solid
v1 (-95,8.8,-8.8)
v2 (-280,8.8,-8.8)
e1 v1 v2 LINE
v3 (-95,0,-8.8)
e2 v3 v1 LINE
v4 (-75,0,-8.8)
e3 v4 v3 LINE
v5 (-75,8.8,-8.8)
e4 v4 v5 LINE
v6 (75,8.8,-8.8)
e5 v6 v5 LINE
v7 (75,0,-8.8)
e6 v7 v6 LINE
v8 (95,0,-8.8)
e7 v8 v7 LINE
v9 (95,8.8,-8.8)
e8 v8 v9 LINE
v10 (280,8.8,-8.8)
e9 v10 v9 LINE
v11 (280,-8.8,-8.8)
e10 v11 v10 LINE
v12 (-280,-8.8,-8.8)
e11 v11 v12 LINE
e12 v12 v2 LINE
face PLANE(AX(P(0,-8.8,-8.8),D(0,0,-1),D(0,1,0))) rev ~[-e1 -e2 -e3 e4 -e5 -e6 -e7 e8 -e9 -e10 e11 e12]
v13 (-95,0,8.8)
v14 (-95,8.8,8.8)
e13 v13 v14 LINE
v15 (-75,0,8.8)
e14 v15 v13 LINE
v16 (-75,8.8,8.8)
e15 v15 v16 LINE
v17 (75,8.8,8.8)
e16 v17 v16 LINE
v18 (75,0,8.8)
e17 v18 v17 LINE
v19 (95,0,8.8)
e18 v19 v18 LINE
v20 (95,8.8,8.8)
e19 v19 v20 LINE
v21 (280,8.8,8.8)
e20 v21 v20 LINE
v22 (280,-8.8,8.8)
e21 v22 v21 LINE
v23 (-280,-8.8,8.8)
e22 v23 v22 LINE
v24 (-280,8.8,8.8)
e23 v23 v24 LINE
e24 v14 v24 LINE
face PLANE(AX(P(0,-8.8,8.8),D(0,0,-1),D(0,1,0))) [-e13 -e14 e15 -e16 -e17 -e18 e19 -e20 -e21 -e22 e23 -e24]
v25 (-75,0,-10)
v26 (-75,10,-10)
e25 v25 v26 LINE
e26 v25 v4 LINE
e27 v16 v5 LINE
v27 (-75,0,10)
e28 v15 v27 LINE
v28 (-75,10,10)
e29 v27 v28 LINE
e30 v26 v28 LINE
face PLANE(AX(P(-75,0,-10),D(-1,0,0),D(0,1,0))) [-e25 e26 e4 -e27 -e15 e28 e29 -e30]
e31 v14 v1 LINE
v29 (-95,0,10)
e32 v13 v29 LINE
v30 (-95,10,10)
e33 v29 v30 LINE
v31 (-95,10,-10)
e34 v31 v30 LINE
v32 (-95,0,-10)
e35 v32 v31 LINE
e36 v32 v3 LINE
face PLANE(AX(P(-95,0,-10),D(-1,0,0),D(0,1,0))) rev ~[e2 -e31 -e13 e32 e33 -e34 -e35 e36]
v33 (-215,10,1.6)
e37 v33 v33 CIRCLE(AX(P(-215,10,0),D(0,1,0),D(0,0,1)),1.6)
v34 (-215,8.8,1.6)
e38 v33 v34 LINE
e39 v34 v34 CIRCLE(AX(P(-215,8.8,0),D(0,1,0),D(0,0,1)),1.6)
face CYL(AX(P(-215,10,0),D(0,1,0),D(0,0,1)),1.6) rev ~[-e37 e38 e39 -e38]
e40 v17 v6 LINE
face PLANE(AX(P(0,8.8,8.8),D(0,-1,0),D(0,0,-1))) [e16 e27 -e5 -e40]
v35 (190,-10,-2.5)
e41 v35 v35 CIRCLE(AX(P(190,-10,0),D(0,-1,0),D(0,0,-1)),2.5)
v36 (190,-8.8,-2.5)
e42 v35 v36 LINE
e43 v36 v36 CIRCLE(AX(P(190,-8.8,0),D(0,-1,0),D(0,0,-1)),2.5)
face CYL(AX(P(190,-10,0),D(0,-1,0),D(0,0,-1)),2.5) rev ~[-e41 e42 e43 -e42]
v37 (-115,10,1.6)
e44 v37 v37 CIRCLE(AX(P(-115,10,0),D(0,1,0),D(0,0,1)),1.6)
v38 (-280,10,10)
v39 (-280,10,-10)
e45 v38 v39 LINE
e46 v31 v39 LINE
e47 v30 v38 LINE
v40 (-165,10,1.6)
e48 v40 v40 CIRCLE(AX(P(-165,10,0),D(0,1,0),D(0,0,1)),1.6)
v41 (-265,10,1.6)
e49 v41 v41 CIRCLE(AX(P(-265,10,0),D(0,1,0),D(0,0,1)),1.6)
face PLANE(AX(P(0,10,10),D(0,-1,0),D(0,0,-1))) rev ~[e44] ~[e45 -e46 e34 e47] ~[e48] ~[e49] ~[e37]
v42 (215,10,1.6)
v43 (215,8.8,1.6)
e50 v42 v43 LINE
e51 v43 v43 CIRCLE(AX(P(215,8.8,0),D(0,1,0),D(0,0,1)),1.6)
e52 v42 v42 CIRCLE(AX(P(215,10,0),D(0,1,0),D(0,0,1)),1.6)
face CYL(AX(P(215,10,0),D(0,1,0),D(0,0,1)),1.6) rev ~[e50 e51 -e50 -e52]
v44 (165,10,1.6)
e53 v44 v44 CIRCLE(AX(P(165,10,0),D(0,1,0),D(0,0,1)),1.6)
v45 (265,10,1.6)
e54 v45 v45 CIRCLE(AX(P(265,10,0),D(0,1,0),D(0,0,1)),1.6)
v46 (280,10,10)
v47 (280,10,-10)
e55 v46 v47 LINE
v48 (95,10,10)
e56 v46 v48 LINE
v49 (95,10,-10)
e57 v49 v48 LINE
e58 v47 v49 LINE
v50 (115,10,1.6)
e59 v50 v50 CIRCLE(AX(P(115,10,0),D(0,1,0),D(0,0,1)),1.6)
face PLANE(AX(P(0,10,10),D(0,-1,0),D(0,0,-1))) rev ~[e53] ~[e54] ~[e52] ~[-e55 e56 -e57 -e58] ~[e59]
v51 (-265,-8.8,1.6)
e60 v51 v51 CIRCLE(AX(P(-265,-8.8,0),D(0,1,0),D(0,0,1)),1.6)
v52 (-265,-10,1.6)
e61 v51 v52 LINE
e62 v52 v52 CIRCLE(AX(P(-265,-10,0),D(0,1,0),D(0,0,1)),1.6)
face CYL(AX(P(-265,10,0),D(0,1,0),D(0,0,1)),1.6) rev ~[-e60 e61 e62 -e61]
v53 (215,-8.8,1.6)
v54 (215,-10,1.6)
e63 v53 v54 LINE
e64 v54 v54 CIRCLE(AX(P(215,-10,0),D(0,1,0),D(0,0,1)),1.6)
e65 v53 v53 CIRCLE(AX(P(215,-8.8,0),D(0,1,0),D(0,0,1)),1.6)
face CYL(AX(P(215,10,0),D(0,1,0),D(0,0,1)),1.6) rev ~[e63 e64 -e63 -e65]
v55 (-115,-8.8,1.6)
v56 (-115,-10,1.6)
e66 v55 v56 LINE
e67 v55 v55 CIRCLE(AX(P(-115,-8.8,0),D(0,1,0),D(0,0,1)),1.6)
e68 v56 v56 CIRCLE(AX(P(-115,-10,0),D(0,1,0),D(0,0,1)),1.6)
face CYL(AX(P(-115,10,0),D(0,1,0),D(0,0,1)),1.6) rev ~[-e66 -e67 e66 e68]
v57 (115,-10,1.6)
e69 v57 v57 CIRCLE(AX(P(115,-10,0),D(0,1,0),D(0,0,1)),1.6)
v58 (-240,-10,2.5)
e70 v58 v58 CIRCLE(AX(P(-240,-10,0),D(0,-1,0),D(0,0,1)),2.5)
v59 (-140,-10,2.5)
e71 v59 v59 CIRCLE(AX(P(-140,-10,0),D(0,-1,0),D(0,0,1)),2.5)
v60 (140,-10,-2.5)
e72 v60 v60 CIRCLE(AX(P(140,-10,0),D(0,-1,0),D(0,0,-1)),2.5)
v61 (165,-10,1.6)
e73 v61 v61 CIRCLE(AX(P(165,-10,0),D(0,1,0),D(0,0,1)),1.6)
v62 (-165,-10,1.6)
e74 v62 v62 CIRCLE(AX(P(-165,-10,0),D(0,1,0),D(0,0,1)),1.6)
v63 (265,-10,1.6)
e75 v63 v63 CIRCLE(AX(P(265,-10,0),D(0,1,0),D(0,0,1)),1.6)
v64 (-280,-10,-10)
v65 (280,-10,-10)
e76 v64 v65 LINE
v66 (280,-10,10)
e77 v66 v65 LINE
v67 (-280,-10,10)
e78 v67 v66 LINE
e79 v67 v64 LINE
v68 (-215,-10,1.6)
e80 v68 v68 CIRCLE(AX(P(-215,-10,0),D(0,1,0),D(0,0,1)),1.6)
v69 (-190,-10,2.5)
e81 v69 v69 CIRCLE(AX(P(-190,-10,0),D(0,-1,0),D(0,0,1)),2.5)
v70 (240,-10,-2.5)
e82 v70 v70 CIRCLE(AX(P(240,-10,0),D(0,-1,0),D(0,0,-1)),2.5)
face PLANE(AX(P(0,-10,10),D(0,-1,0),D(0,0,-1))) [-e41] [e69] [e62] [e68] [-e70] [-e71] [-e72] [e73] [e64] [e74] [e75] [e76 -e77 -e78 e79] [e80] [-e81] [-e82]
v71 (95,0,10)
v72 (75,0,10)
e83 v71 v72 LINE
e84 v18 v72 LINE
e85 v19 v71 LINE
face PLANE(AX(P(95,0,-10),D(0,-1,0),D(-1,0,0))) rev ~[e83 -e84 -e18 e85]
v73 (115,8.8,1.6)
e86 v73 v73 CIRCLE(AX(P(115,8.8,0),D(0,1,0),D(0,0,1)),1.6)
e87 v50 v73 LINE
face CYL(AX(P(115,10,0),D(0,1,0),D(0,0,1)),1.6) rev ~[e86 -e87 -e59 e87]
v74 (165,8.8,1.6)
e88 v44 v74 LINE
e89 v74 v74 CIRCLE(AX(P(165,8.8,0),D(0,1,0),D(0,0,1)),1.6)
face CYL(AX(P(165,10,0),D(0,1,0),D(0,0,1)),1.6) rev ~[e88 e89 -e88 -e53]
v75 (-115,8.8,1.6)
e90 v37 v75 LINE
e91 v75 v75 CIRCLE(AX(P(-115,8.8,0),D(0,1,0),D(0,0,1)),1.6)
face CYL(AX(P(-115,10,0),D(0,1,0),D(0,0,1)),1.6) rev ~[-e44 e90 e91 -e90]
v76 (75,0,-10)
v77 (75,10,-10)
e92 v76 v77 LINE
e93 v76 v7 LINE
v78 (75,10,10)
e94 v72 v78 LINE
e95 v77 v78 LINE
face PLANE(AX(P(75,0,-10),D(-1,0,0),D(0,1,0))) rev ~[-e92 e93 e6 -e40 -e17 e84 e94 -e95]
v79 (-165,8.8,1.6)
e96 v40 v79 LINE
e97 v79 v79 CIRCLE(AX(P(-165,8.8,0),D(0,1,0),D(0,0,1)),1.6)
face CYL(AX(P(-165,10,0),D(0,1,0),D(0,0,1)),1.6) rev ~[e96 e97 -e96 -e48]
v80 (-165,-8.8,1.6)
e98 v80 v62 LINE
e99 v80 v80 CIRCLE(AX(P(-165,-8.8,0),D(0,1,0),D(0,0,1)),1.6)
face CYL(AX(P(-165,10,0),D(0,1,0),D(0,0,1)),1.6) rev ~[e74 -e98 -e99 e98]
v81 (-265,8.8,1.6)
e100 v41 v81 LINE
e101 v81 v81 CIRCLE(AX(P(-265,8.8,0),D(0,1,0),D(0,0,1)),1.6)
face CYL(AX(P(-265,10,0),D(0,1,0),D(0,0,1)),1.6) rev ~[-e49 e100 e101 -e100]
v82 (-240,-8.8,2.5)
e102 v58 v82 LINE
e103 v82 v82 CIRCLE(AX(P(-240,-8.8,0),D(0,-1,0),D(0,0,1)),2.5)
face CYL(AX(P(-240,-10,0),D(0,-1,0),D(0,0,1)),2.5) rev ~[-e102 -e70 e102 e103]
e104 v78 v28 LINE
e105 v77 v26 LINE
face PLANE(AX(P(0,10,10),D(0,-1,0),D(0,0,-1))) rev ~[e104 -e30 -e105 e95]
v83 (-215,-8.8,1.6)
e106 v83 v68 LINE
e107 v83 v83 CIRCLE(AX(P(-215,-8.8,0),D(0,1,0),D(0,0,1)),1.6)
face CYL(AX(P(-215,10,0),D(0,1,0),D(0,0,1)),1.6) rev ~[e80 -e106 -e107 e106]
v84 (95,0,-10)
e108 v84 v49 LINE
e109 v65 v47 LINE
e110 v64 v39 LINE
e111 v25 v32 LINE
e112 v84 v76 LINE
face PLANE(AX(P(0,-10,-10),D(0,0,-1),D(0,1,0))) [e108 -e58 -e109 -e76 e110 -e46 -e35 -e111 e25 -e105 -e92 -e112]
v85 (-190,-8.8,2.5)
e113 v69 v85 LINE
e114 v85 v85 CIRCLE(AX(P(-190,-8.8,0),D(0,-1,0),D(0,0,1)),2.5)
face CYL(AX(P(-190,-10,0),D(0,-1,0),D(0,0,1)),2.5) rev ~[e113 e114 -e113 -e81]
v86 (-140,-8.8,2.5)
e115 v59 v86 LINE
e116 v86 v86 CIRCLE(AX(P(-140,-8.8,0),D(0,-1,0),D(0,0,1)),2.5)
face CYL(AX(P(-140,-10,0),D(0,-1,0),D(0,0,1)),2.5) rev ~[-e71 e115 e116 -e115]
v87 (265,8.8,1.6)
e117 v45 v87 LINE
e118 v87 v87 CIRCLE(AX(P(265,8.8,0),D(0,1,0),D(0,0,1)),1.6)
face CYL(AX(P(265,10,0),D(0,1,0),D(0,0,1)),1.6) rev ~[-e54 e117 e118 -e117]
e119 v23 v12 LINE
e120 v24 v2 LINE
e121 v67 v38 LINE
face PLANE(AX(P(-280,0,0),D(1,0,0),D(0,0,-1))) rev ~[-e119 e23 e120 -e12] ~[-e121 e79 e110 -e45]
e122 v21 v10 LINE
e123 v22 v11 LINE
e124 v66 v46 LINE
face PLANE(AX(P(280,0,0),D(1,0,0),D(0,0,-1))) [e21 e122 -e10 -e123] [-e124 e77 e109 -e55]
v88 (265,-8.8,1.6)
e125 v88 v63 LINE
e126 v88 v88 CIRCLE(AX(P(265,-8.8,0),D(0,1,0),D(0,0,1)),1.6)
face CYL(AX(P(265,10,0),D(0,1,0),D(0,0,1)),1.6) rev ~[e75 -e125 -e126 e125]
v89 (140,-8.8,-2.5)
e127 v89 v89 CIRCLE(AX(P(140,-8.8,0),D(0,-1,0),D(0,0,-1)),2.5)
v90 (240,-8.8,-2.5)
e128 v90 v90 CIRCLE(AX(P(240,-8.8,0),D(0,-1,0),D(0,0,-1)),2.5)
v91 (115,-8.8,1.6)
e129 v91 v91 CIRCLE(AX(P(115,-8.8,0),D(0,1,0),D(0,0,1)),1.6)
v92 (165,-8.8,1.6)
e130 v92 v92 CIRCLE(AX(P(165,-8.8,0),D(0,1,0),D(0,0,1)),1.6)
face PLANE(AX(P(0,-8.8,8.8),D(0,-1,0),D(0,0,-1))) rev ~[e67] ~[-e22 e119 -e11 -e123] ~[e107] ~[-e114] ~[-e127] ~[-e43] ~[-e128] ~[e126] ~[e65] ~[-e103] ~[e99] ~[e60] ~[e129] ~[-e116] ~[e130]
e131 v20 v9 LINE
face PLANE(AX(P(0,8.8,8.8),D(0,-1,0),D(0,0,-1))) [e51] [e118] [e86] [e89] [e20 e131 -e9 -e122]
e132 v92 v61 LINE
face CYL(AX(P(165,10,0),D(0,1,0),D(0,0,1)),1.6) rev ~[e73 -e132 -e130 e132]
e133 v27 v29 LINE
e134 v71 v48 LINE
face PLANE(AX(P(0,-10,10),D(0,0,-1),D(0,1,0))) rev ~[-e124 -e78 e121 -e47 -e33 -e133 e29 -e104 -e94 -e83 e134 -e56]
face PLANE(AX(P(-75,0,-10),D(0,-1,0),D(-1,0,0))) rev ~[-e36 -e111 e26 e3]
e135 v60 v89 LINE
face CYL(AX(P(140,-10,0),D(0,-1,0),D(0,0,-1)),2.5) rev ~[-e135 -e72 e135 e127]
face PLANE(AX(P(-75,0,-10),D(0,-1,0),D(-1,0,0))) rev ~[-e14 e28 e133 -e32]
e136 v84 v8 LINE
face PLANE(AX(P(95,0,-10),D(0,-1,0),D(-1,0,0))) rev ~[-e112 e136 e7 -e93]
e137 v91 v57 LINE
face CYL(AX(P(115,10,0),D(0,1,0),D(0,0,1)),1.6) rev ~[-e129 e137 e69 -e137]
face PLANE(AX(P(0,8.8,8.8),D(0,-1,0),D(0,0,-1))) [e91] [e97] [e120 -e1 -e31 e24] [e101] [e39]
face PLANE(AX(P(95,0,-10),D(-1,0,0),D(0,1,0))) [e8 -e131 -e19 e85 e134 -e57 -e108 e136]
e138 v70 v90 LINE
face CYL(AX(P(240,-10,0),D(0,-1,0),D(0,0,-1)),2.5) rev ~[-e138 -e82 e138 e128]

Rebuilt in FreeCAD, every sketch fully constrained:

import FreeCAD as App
import Part
import Sketcher

V = App.Vector
Q = App.Units.Quantity

doc = App.newDocument("Part")
params = doc.addObject("Spreadsheet::Sheet", "Params")
for row, (alias, value) in enumerate([
    ("sketch1_width", "20 mm"),
    ("sketch1_width2", "17.6 mm"),
    ("pad1_length", "560 mm"),
    ("sketch2_width", "20 mm"),
    ("sketch2_height", "10 mm"),
    ("sketch3_diameter", "3.2 mm"),
    ("sketch4_diameter", "5 mm"),
    ("sketch5_diameter", "5 mm"),
    ("sketch6_diameter", "5 mm"),
    ("sketch7_diameter", "5 mm"),
    ("sketch8_diameter", "5 mm"),
    ("sketch9_diameter", "5 mm"),
], start=1):
    params.set(f"A{row}", alias)
    params.set(f"B{row}", "=" + value)
    params.setAlias(f"B{row}", alias)

body = doc.addObject("PartDesign::Body", "Body")

# Sketch on YZ plane
sketch1 = body.newObject("Sketcher::SketchObject", "Sketch")
sketch1.AttachmentSupport = (doc.getObject("YZ_Plane"), [""])
sketch1.MapMode = "FlatFace"
sketch1.addGeometry(Part.LineSegment(V(10, 10, 0), V(-10, 10, 0)), False)
sketch1.addGeometry(Part.LineSegment(V(-10, 10, 0), V(-10, -10, 0)), False)
sketch1.addGeometry(Part.LineSegment(V(-10, -10, 0), V(10, -10, 0)), False)
sketch1.addGeometry(Part.LineSegment(V(10, -10, 0), V(10, 10, 0)), False)
sketch1.addGeometry(Part.LineSegment(V(-9, -9, 0), V(-9, 9, 0)), False)
sketch1.addGeometry(Part.LineSegment(V(-9, 9, 0), V(9, 9, 0)), False)
sketch1.addGeometry(Part.LineSegment(V(9, 9, 0), V(9, -9, 0)), False)
sketch1.addGeometry(Part.LineSegment(V(9, -9, 0), V(-9, -9, 0)), False)
sketch1.addConstraint(Sketcher.Constraint("Coincident", 0, 2, 1, 1))
sketch1.addConstraint(Sketcher.Constraint("Coincident", 1, 2, 2, 1))
sketch1.addConstraint(Sketcher.Constraint("Coincident", 2, 2, 3, 1))
sketch1.addConstraint(Sketcher.Constraint("Coincident", 3, 2, 0, 1))
sketch1.addConstraint(Sketcher.Constraint("Coincident", 4, 2, 5, 1))
sketch1.addConstraint(Sketcher.Constraint("Coincident", 5, 2, 6, 1))
sketch1.addConstraint(Sketcher.Constraint("Coincident", 6, 2, 7, 1))
sketch1.addConstraint(Sketcher.Constraint("Coincident", 7, 2, 4, 1))
sketch1.addConstraint(Sketcher.Constraint("Horizontal", 0))
sketch1.addConstraint(Sketcher.Constraint("Vertical", 1))
sketch1.addConstraint(Sketcher.Constraint("Horizontal", 2))
sketch1.addConstraint(Sketcher.Constraint("Vertical", 3))
sketch1.addConstraint(Sketcher.Constraint("Vertical", 4))
sketch1.addConstraint(Sketcher.Constraint("Horizontal", 5))
sketch1.addConstraint(Sketcher.Constraint("Vertical", 6))
sketch1.addConstraint(Sketcher.Constraint("Horizontal", 7))
sketch1.addConstraint(Sketcher.Constraint("Symmetric", 0, 2, 2, 2, -1, 1))
sketch1.addConstraint(Sketcher.Constraint("Symmetric", 4, 2, 6, 2, -1, 1))
sketch1.addConstraint(Sketcher.Constraint("Equal", 2, 1))
sketch1.addConstraint(Sketcher.Constraint("Equal", 7, 4))
sketch1.addConstraint(Sketcher.Constraint("DistanceX", 0, 2, 0, 1, Q("20 mm")))
sketch1.addConstraint(Sketcher.Constraint("DistanceX", 5, 1, 5, 2, Q("17.6 mm")))
sketch1.setExpression("Constraints[20]", "Params.sketch1_width")
sketch1.setExpression("Constraints[21]", "Params.sketch1_width2")
pad1 = body.newObject("PartDesign::Pad", "Pad")
pad1.Profile = sketch1
pad1.setExpression("Length", "Params.pad1_length")
pad1.Midplane = True

# Sketch on XY plane
sketch2 = body.newObject("Sketcher::SketchObject", "Sketch001")
sketch2.AttachmentSupport = (doc.getObject("XY_Plane"), [""])
sketch2.MapMode = "FlatFace"
sketch2.AttachmentOffset = App.Placement(V(0, 0, -10), App.Rotation())
sketch2.addGeometry(Part.LineSegment(V(95, 10, 0), V(95, 0, 0)), False)
sketch2.addGeometry(Part.LineSegment(V(95, 0, 0), V(75, 0, 0)), False)
sketch2.addGeometry(Part.LineSegment(V(75, 0, 0), V(75, 10, 0)), False)
sketch2.addGeometry(Part.LineSegment(V(75, 10, 0), V(95, 10, 0)), False)
sketch2.addGeometry(Part.LineSegment(V(-75, 10, 0), V(-75, 0, 0)), False)
sketch2.addGeometry(Part.LineSegment(V(-75, 0, 0), V(-95, 0, 0)), False)
sketch2.addGeometry(Part.LineSegment(V(-95, 0, 0), V(-95, 10, 0)), False)
sketch2.addGeometry(Part.LineSegment(V(-95, 10, 0), V(-75, 10, 0)), False)
sketch2.addConstraint(Sketcher.Constraint("Coincident", 0, 2, 1, 1))
sketch2.addConstraint(Sketcher.Constraint("Coincident", 1, 2, 2, 1))
sketch2.addConstraint(Sketcher.Constraint("Coincident", 2, 2, 3, 1))
sketch2.addConstraint(Sketcher.Constraint("Coincident", 3, 2, 0, 1))
sketch2.addConstraint(Sketcher.Constraint("Coincident", 4, 2, 5, 1))
sketch2.addConstraint(Sketcher.Constraint("Coincident", 5, 2, 6, 1))
sketch2.addConstraint(Sketcher.Constraint("Coincident", 6, 2, 7, 1))
sketch2.addConstraint(Sketcher.Constraint("Coincident", 7, 2, 4, 1))
sketch2.addConstraint(Sketcher.Constraint("Vertical", 0))
sketch2.addConstraint(Sketcher.Constraint("Horizontal", 1))
sketch2.addConstraint(Sketcher.Constraint("Vertical", 2))
sketch2.addConstraint(Sketcher.Constraint("Horizontal", 3))
sketch2.addConstraint(Sketcher.Constraint("Vertical", 4))
sketch2.addConstraint(Sketcher.Constraint("Horizontal", 5))
sketch2.addConstraint(Sketcher.Constraint("Vertical", 6))
sketch2.addConstraint(Sketcher.Constraint("Horizontal", 7))
sketch2.addConstraint(Sketcher.Constraint("Symmetric", 1, 2, 4, 2, -1, 1))
sketch2.addConstraint(Sketcher.Constraint("Symmetric", 0, 2, 5, 2, -2))
sketch2.addConstraint(Sketcher.Constraint("Horizontal", 3, 2, 6, 2))
sketch2.addConstraint(Sketcher.Constraint("DistanceX", 1, 2, 1, 1, Q("20 mm")))
sketch2.addConstraint(Sketcher.Constraint("DistanceY", 0, 2, 0, 1, Q("10 mm")))
sketch2.addConstraint(Sketcher.Constraint("DistanceX", -1, 1, 0, 2, Q("95 mm")))
sketch2.setExpression("Constraints[19]", "Params.sketch2_width")
sketch2.setExpression("Constraints[20]", "Params.sketch2_height")
pocket1 = body.newObject("PartDesign::Pocket", "Pocket")
pocket1.Profile = sketch2
pocket1.Type = "ThroughAll"
pocket1.Reversed = True

# Sketch on XZ plane
sketch3 = body.newObject("Sketcher::SketchObject", "Sketch002")
sketch3.AttachmentSupport = (doc.getObject("XZ_Plane"), [""])
sketch3.MapMode = "FlatFace"
sketch3.AttachmentOffset = App.Placement(V(0, 0, -10), App.Rotation())
sketch3.addGeometry(Part.Circle(V(115, 0, 0), V(0, 0, 1), 1.6), False)
sketch3.addGeometry(Part.Circle(V(165, 0, 0), V(0, 0, 1), 1.6), False)
sketch3.addGeometry(Part.Circle(V(265, 0, 0), V(0, 0, 1), 1.6), False)
sketch3.addGeometry(Part.Circle(V(215, 0, 0), V(0, 0, 1), 1.6), False)
sketch3.addGeometry(Part.Circle(V(-215, 0, 0), V(0, 0, 1), 1.6), False)
sketch3.addGeometry(Part.Circle(V(-265, 0, 0), V(0, 0, 1), 1.6), False)
sketch3.addGeometry(Part.Circle(V(-115, 0, 0), V(0, 0, 1), 1.6), False)
sketch3.addGeometry(Part.Circle(V(-165, 0, 0), V(0, 0, 1), 1.6), False)
sketch3.addConstraint(Sketcher.Constraint("Equal", 0, 1))
sketch3.addConstraint(Sketcher.Constraint("Equal", 1, 2))
sketch3.addConstraint(Sketcher.Constraint("Equal", 2, 3))
sketch3.addConstraint(Sketcher.Constraint("Equal", 3, 4))
sketch3.addConstraint(Sketcher.Constraint("Equal", 4, 5))
sketch3.addConstraint(Sketcher.Constraint("Equal", 5, 6))
sketch3.addConstraint(Sketcher.Constraint("Equal", 6, 7))
sketch3.addConstraint(Sketcher.Constraint("Symmetric", 3, 3, 4, 3, -1, 1))
sketch3.addConstraint(Sketcher.Constraint("Symmetric", 2, 3, 5, 3, -1, 1))
sketch3.addConstraint(Sketcher.Constraint("Symmetric", 0, 3, 6, 3, -1, 1))
sketch3.addConstraint(Sketcher.Constraint("Symmetric", 1, 3, 7, 3, -1, 1))
sketch3.addConstraint(Sketcher.Constraint("PointOnObject", 0, 3, -1))
sketch3.addConstraint(Sketcher.Constraint("PointOnObject", 1, 3, -1))
sketch3.addConstraint(Sketcher.Constraint("PointOnObject", 2, 3, -1))
sketch3.addConstraint(Sketcher.Constraint("PointOnObject", 3, 3, -1))
sketch3.addConstraint(Sketcher.Constraint("Diameter", 0, Q("3.2 mm")))
sketch3.addConstraint(Sketcher.Constraint("DistanceX", -1, 1, 0, 3, Q("115 mm")))
sketch3.addConstraint(Sketcher.Constraint("DistanceX", -1, 1, 1, 3, Q("165 mm")))
sketch3.addConstraint(Sketcher.Constraint("DistanceX", -1, 1, 2, 3, Q("265 mm")))
sketch3.addConstraint(Sketcher.Constraint("DistanceX", -1, 1, 3, 3, Q("215 mm")))
sketch3.setExpression("Constraints[15]", "Params.sketch3_diameter")
pocket2 = body.newObject("PartDesign::Pocket", "Pocket001")
pocket2.Profile = sketch3
pocket2.Type = "ThroughAll"
pocket2.Reversed = True

# Sketch on XZ plane
sketch4 = body.newObject("Sketcher::SketchObject", "Sketch003")
sketch4.AttachmentSupport = (doc.getObject("XZ_Plane"), [""])
sketch4.MapMode = "FlatFace"
sketch4.AttachmentOffset = App.Placement(V(0, 0, 10), App.Rotation())
sketch4.addGeometry(Part.Circle(V(240, 0, 0), V(0, 0, 1), 2.5), False)
sketch4.addConstraint(Sketcher.Constraint("PointOnObject", 0, 3, -1))
sketch4.addConstraint(Sketcher.Constraint("Diameter", 0, Q("5 mm")))
sketch4.addConstraint(Sketcher.Constraint("DistanceX", -1, 1, 0, 3, Q("240 mm")))
sketch4.setExpression("Constraints[1]", "Params.sketch4_diameter")
pocket3 = body.newObject("PartDesign::Pocket", "Pocket002")
pocket3.Profile = sketch4
pocket3.Type = "UpToFirst"

# Sketch on XZ plane
sketch5 = body.newObject("Sketcher::SketchObject", "Sketch004")
sketch5.AttachmentSupport = (doc.getObject("XZ_Plane"), [""])
sketch5.MapMode = "FlatFace"
sketch5.AttachmentOffset = App.Placement(V(0, 0, 10), App.Rotation())
sketch5.addGeometry(Part.Circle(V(-240, 0, 0), V(0, 0, 1), 2.5), False)
sketch5.addConstraint(Sketcher.Constraint("PointOnObject", 0, 3, -1))
sketch5.addConstraint(Sketcher.Constraint("Diameter", 0, Q("5 mm")))
sketch5.addConstraint(Sketcher.Constraint("DistanceX", 0, 3, -1, 1, Q("240 mm")))
sketch5.setExpression("Constraints[1]", "Params.sketch5_diameter")
pocket4 = body.newObject("PartDesign::Pocket", "Pocket003")
pocket4.Profile = sketch5
pocket4.Type = "UpToFirst"

# Sketch on XZ plane
sketch6 = body.newObject("Sketcher::SketchObject", "Sketch005")
sketch6.AttachmentSupport = (doc.getObject("XZ_Plane"), [""])
sketch6.MapMode = "FlatFace"
sketch6.AttachmentOffset = App.Placement(V(0, 0, 10), App.Rotation())
sketch6.addGeometry(Part.Circle(V(190, 0, 0), V(0, 0, 1), 2.5), False)
sketch6.addConstraint(Sketcher.Constraint("PointOnObject", 0, 3, -1))
sketch6.addConstraint(Sketcher.Constraint("Diameter", 0, Q("5 mm")))
sketch6.addConstraint(Sketcher.Constraint("DistanceX", -1, 1, 0, 3, Q("190 mm")))
sketch6.setExpression("Constraints[1]", "Params.sketch6_diameter")
pocket5 = body.newObject("PartDesign::Pocket", "Pocket004")
pocket5.Profile = sketch6
pocket5.Type = "UpToFirst"

# Sketch on XZ plane
sketch7 = body.newObject("Sketcher::SketchObject", "Sketch006")
sketch7.AttachmentSupport = (doc.getObject("XZ_Plane"), [""])
sketch7.MapMode = "FlatFace"
sketch7.AttachmentOffset = App.Placement(V(0, 0, 10), App.Rotation())
sketch7.addGeometry(Part.Circle(V(140, 0, 0), V(0, 0, 1), 2.5), False)
sketch7.addConstraint(Sketcher.Constraint("PointOnObject", 0, 3, -1))
sketch7.addConstraint(Sketcher.Constraint("Diameter", 0, Q("5 mm")))
sketch7.addConstraint(Sketcher.Constraint("DistanceX", -1, 1, 0, 3, Q("140 mm")))
sketch7.setExpression("Constraints[1]", "Params.sketch7_diameter")
pocket6 = body.newObject("PartDesign::Pocket", "Pocket005")
pocket6.Profile = sketch7
pocket6.Type = "UpToFirst"

# Sketch on XZ plane
sketch8 = body.newObject("Sketcher::SketchObject", "Sketch007")
sketch8.AttachmentSupport = (doc.getObject("XZ_Plane"), [""])
sketch8.MapMode = "FlatFace"
sketch8.AttachmentOffset = App.Placement(V(0, 0, 10), App.Rotation())
sketch8.addGeometry(Part.Circle(V(-140, 0, 0), V(0, 0, 1), 2.5), False)
sketch8.addConstraint(Sketcher.Constraint("PointOnObject", 0, 3, -1))
sketch8.addConstraint(Sketcher.Constraint("Diameter", 0, Q("5 mm")))
sketch8.addConstraint(Sketcher.Constraint("DistanceX", 0, 3, -1, 1, Q("140 mm")))
sketch8.setExpression("Constraints[1]", "Params.sketch8_diameter")
pocket7 = body.newObject("PartDesign::Pocket", "Pocket006")
pocket7.Profile = sketch8
pocket7.Type = "UpToFirst"

# Sketch on XZ plane
sketch9 = body.newObject("Sketcher::SketchObject", "Sketch008")
sketch9.AttachmentSupport = (doc.getObject("XZ_Plane"), [""])
sketch9.MapMode = "FlatFace"
sketch9.AttachmentOffset = App.Placement(V(0, 0, 10), App.Rotation())
sketch9.addGeometry(Part.Circle(V(-190, 0, 0), V(0, 0, 1), 2.5), False)
sketch9.addConstraint(Sketcher.Constraint("PointOnObject", 0, 3, -1))
sketch9.addConstraint(Sketcher.Constraint("Diameter", 0, Q("5 mm")))
sketch9.addConstraint(Sketcher.Constraint("DistanceX", 0, 3, -1, 1, Q("190 mm")))
sketch9.setExpression("Constraints[1]", "Params.sketch9_diameter")
pocket8 = body.newObject("PartDesign::Pocket", "Pocket007")
pocket8.Profile = sketch9
pocket8.Type = "UpToFirst"

doc.recompute()
